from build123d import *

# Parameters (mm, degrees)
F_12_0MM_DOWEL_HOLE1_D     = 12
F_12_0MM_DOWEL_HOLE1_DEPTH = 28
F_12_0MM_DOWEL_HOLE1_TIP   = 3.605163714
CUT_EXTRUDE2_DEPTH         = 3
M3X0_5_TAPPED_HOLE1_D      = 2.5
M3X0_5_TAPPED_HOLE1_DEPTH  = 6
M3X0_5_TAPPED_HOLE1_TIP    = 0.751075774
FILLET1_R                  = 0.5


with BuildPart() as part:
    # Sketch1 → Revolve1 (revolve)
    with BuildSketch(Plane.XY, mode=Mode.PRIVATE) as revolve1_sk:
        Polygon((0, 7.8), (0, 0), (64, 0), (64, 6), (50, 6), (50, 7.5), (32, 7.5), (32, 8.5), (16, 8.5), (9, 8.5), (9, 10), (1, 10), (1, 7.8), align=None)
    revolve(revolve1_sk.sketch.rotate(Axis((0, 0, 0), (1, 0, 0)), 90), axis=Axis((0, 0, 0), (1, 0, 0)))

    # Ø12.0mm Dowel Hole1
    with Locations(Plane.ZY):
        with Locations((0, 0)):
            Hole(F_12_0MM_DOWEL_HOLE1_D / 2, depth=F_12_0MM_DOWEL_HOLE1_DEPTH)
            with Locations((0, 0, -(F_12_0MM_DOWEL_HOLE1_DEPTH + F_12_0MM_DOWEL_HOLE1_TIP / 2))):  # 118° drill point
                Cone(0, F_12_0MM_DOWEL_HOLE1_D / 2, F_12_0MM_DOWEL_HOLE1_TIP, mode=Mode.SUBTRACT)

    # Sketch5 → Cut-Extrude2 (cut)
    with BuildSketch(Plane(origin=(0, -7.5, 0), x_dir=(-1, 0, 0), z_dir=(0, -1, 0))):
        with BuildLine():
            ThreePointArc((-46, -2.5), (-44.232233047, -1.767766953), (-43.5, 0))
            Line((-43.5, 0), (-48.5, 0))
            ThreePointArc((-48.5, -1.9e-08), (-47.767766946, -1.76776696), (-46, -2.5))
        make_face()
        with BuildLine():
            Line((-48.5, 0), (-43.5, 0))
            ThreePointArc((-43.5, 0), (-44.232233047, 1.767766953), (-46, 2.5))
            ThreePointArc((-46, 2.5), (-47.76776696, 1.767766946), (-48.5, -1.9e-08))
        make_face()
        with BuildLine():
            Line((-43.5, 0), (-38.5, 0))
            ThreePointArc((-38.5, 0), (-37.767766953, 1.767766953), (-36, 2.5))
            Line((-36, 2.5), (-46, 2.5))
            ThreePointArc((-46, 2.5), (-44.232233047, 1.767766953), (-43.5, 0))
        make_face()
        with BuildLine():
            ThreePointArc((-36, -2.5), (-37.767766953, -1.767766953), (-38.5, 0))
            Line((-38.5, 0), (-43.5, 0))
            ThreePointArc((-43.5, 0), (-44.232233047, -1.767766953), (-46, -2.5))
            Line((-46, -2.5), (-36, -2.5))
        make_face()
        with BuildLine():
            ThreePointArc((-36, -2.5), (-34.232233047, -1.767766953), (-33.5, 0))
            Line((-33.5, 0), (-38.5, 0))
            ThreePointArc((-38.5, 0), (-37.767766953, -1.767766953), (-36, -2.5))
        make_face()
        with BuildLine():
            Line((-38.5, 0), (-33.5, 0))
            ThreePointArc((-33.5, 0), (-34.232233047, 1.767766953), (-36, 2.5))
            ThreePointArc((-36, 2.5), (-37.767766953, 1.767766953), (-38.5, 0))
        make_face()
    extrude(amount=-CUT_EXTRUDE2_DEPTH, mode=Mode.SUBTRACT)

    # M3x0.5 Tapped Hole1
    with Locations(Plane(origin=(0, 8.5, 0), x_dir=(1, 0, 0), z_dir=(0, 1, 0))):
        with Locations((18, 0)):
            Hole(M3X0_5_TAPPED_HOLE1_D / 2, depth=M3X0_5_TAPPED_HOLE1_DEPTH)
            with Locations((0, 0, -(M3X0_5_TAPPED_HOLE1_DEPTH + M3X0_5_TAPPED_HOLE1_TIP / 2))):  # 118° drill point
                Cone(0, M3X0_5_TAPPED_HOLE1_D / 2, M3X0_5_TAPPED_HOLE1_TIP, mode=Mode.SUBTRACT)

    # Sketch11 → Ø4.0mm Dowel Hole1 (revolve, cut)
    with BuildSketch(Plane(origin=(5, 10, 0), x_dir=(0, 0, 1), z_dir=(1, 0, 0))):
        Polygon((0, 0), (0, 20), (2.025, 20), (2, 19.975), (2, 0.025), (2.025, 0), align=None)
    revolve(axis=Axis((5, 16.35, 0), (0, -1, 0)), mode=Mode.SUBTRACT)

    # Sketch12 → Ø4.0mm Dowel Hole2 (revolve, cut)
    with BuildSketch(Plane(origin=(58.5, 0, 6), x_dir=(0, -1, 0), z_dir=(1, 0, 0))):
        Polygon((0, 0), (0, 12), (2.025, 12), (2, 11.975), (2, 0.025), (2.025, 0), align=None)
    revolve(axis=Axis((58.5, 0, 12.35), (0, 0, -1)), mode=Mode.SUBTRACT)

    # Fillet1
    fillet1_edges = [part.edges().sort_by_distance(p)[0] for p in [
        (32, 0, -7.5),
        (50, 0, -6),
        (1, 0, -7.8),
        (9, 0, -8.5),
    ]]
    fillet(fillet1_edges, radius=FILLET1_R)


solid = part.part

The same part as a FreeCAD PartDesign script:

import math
import FreeCAD as App
import Part
import Sketcher

V = App.Vector


def edges_at(feature, points):
    """Names of the edges that pass closest to the given points."""
    edges = feature.Shape.Edges
    near = lambda p: min(range(len(edges)), key=lambda i: edges[i].distToShape(Part.Vertex(*p))[0])
    return sorted({f"Edge{near(p) + 1}" for p in points})

doc = App.newDocument("Part")
body = doc.addObject("PartDesign::Body", "Body")

sketch1 = body.newObject("Sketcher::SketchObject", "Sketch")
sketch1.AttachmentSupport = (doc.getObject("XY_Plane"), [""])
sketch1.MapMode = "FlatFace"
sketch1.addGeometry(Part.LineSegment(V(0, 7.8, 0), V(0, 0, 0)), False)
sketch1.addGeometry(Part.LineSegment(V(0, 0, 0), V(64, 0, 0)), False)
sketch1.addGeometry(Part.LineSegment(V(64, 0, 0), V(64, 6, 0)), False)
sketch1.addGeometry(Part.LineSegment(V(64, 6, 0), V(50, 6, 0)), False)
sketch1.addGeometry(Part.LineSegment(V(50, 6, 0), V(50, 7.5, 0)), False)
sketch1.addGeometry(Part.LineSegment(V(50, 7.5, 0), V(32, 7.5, 0)), False)
sketch1.addGeometry(Part.LineSegment(V(32, 7.5, 0), V(32, 8.5, 0)), False)
sketch1.addGeometry(Part.LineSegment(V(32, 8.5, 0), V(9, 8.5, 0)), False)
sketch1.addGeometry(Part.LineSegment(V(9, 8.5, 0), V(9, 10, 0)), False)
sketch1.addGeometry(Part.LineSegment(V(9, 10, 0), V(1, 10, 0)), False)
sketch1.addGeometry(Part.LineSegment(V(1, 10, 0), V(1, 7.8, 0)), False)
sketch1.addGeometry(Part.LineSegment(V(1, 7.8, 0), V(0, 7.8, 0)), False)
sketch1.addConstraint(Sketcher.Constraint("Coincident", 0, 2, 1, 1))
sketch1.addConstraint(Sketcher.Constraint("Coincident", 1, 2, 2, 1))
sketch1.addConstraint(Sketcher.Constraint("Coincident", 2, 2, 3, 1))
sketch1.addConstraint(Sketcher.Constraint("Coincident", 3, 2, 4, 1))
sketch1.addConstraint(Sketcher.Constraint("Coincident", 4, 2, 5, 1))
sketch1.addConstraint(Sketcher.Constraint("Coincident", 5, 2, 6, 1))
sketch1.addConstraint(Sketcher.Constraint("Coincident", 6, 2, 7, 1))
sketch1.addConstraint(Sketcher.Constraint("Coincident", 7, 2, 8, 1))
sketch1.addConstraint(Sketcher.Constraint("Coincident", 8, 2, 9, 1))
sketch1.addConstraint(Sketcher.Constraint("Coincident", 9, 2, 10, 1))
sketch1.addConstraint(Sketcher.Constraint("Coincident", 10, 2, 11, 1))
sketch1.addConstraint(Sketcher.Constraint("Coincident", 11, 2, 0, 1))
sketch1.addConstraint(Sketcher.Constraint("Vertical", 0))
sketch1.addConstraint(Sketcher.Constraint("Horizontal", 1))
sketch1.addConstraint(Sketcher.Constraint("Vertical", 2))
sketch1.addConstraint(Sketcher.Constraint("Horizontal", 3))
sketch1.addConstraint(Sketcher.Constraint("Vertical", 4))
sketch1.addConstraint(Sketcher.Constraint("Horizontal", 5))
sketch1.addConstraint(Sketcher.Constraint("Vertical", 6))
sketch1.addConstraint(Sketcher.Constraint("Horizontal", 7))
sketch1.addConstraint(Sketcher.Constraint("Vertical", 8))
sketch1.addConstraint(Sketcher.Constraint("Horizontal", 9))
sketch1.addConstraint(Sketcher.Constraint("Vertical", 10))
sketch1.addConstraint(Sketcher.Constraint("Horizontal", 11))
sketch1.addConstraint(Sketcher.Constraint("Coincident", 0, 2, -1, 1))
sketch1.addConstraint(Sketcher.Constraint("Equal", 11, 6))
sketch1.addConstraint(Sketcher.Constraint("Equal", 4, 8))
sketch1.addConstraint(Sketcher.Constraint("DistanceX", 1, 1, 1, 2, 64.0))
sketch1.addConstraint(Sketcher.Constraint("DistanceX", 3, 2, 3, 1, 14.0))
sketch1.addConstraint(Sketcher.Constraint("DistanceX", 5, 2, 5, 1, 18.0))
sketch1.addConstraint(Sketcher.Constraint("DistanceX", 7, 2, 7, 1, 23.0))
sketch1.addConstraint(Sketcher.Constraint("DistanceX", 9, 2, 9, 1, 8.0))
sketch1.addConstraint(Sketcher.Constraint("DistanceY", 2, 1, 2, 2, 6.0))
sketch1.addConstraint(Sketcher.Constraint("DistanceY", 0, 2, 0, 1, 7.8))
sketch1.addConstraint(Sketcher.Constraint("DistanceY", 4, 1, 4, 2, 1.5))
revolution = body.newObject("PartDesign::Revolution", "Revolution")
revolution.Profile = sketch1
revolution.ReferenceAxis = (sketch1, ["H_Axis"])
revolution.Angle = 360

sketch2 = body.newObject("Sketcher::SketchObject", "Sketch001")
sketch2.AttachmentSupport = (doc.getObject("YZ_Plane"), [""])
sketch2.MapMode = "FlatFace"
sketch2.addGeometry(Part.Circle(V(0, 0, 0), V(0, 0, 1), 6), False)
sketch2.addConstraint(Sketcher.Constraint("Coincident", 0, 3, -1, 1))
sketch2.addConstraint(Sketcher.Constraint("Diameter", 0, 12.0))
doc.recompute()
hole = body.newObject("PartDesign::Hole", "Hole")
hole.Profile = sketch2
hole.ThreadType = "None"
hole.Diameter = 12
hole.DepthType = "Dimension"
hole.Depth = 28
hole.DrillPoint = "Angled"
hole.DrillPointAngle = 118
hole.Reversed = True

sketch3 = body.newObject("Sketcher::SketchObject", "Sketch002")
sketch3.AttachmentSupport = (doc.getObject("XZ_Plane"), [""])
sketch3.MapMode = "FlatFace"
sketch3.AttachmentOffset = App.Placement(V(0, 0, 7.5), App.Rotation())
sketch3.addGeometry(Part.ArcOfCircle(Part.Circle(V(36, 0, 0), V(0, 0, 1), 2.5), math.radians(180), math.radians(270)), False)
sketch3.addGeometry(Part.LineSegment(V(36, -2.5, 0), V(46, -2.5, 0)), False)
sketch3.addGeometry(Part.ArcOfCircle(Part.Circle(V(46, 0, 0), V(0, 0, 1), 2.5), math.radians(-90), math.radians(0)), False)
sketch3.addGeometry(Part.ArcOfCircle(Part.Circle(V(46, 0, 0), V(0, 0, 1), 2.5), math.radians(0), math.radians(90)), False)
sketch3.addGeometry(Part.LineSegment(V(46, 2.5, 0), V(36, 2.5, 0)), False)
sketch3.addGeometry(Part.ArcOfCircle(Part.Circle(V(36, 0, 0), V(0, 0, 1), 2.5), math.radians(90), math.radians(180)), False)
sketch3.addConstraint(Sketcher.Constraint("Tangent", 0, 2, 1, 1))
sketch3.addConstraint(Sketcher.Constraint("Tangent", 1, 2, 2, 1))
sketch3.addConstraint(Sketcher.Constraint("Tangent", 2, 2, 3, 1))
sketch3.addConstraint(Sketcher.Constraint("Tangent", 3, 2, 4, 1))
sketch3.addConstraint(Sketcher.Constraint("Tangent", 4, 2, 5, 1))
sketch3.addConstraint(Sketcher.Constraint("Tangent", 5, 2, 0, 1))
sketch3.addConstraint(Sketcher.Constraint("Horizontal", 1))
sketch3.addConstraint(Sketcher.Constraint("Horizontal", 4))
sketch3.addConstraint(Sketcher.Constraint("Equal", 0, 2))
sketch3.addConstraint(Sketcher.Constraint("Equal", 2, 3))
sketch3.addConstraint(Sketcher.Constraint("PointOnObject", 0, 3, -1))
sketch3.addConstraint(Sketcher.Constraint("PointOnObject", 2, 2, -1))
sketch3.addConstraint(Sketcher.Constraint("PointOnObject", 5, 2, -1))
sketch3.addConstraint(Sketcher.Constraint("Radius", 0, 2.5))
sketch3.addConstraint(Sketcher.Constraint("DistanceX", 1, 1, 1, 2, 10.0))
sketch3.addConstraint(Sketcher.Constraint("DistanceX", -1, 1, 0, 3, 36.0))
pocket1 = body.newObject("PartDesign::Pocket", "Pocket")
pocket1.Profile = sketch3
pocket1.Length = 3

sketch4 = body.newObject("Sketcher::SketchObject", "Sketch003")
sketch4.AttachmentSupport = (doc.getObject("XZ_Plane"), [""])
sketch4.MapMode = "FlatFace"
sketch4.AttachmentOffset = App.Placement(V(0, 0, -8.5), App.Rotation())
sketch4.addGeometry(Part.Circle(V(18, 0, 0), V(0, 0, 1), 1.2), False)
sketch4.addConstraint(Sketcher.Constraint("PointOnObject", 0, 3, -1))
sketch4.addConstraint(Sketcher.Constraint("Diameter", 0, 2.5))
sketch4.addConstraint(Sketcher.Constraint("DistanceX", -1, 1, 0, 3, 18.0))
doc.recompute()
hole2 = body.newObject("PartDesign::Hole", "Hole001")
hole2.Profile = sketch4
hole2.ThreadType = "None"
hole2.Diameter = 2.5
hole2.DepthType = "Dimension"
hole2.Depth = 6
hole2.DrillPoint = "Angled"
hole2.DrillPointAngle = 118
hole2.Reversed = True

sketch5 = body.newObject("Sketcher::SketchObject", "Sketch004")
sketch5.AttachmentSupport = (doc.getObject("YZ_Plane"), [""])
sketch5.MapMode = "FlatFace"
sketch5.AttachmentOffset = App.Placement(V(0, 0, 5), App.Rotation())
sketch5.addGeometry(Part.LineSegment(V(-10, 0, 0), V(10, 0, 0)), False)
sketch5.addGeometry(Part.LineSegment(V(10, 0, 0), V(10, 2.025, 0)), False)
sketch5.addGeometry(Part.LineSegment(V(10, 2.025, 0), V(9.975, 2, 0)), False)
sketch5.addGeometry(Part.LineSegment(V(9.975, 2, 0), V(-9.975, 2, 0)), False)
sketch5.addGeometry(Part.LineSegment(V(-9.975, 2, 0), V(-10, 2.025, 0)), False)
sketch5.addGeometry(Part.LineSegment(V(-10, 2.025, 0), V(-10, 0, 0)), False)
sketch5.addConstraint(Sketcher.Constraint("Coincident", 0, 2, 1, 1))
sketch5.addConstraint(Sketcher.Constraint("Coincident", 1, 2, 2, 1))
sketch5.addConstraint(Sketcher.Constraint("Coincident", 2, 2, 3, 1))
sketch5.addConstraint(Sketcher.Constraint("Coincident", 3, 2, 4, 1))
sketch5.addConstraint(Sketcher.Constraint("Coincident", 4, 2, 5, 1))
sketch5.addConstraint(Sketcher.Constraint("Coincident", 5, 2, 0, 1))
sketch5.addConstraint(Sketcher.Constraint("Horizontal", 0))
sketch5.addConstraint(Sketcher.Constraint("Vertical", 1))
sketch5.addConstraint(Sketcher.Constraint("Horizontal", 3))
sketch5.addConstraint(Sketcher.Constraint("Vertical", 5))
sketch5.addConstraint(Sketcher.Constraint("Symmetric", 0, 2, 5, 2, -1, 1))
sketch5.addConstraint(Sketcher.Constraint("Perpendicular", 2, 4))
sketch5.addConstraint(Sketcher.Constraint("Horizontal", 1, 2, 4, 2))
sketch5.addConstraint(Sketcher.Constraint("Equal", 2, 4))
sketch5.addConstraint(Sketcher.Constraint("DistanceX", 0, 1, 0, 2, 20.0))
sketch5.addConstraint(Sketcher.Constraint("DistanceY", -1, 1, 2, 2, 2.0))
sketch5.addConstraint(Sketcher.Constraint("DistanceX", 3, 2, 3, 1, 19.95))
groove = body.newObject("PartDesign::Groove", "Groove")
groove.Profile = sketch5
groove.ReferenceAxis = (sketch5, ["H_Axis"])
groove.Angle = 360

sketch6 = body.newObject("Sketcher::SketchObject", "Sketch005")
sketch6.AttachmentSupport = (doc.getObject("YZ_Plane"), [""])
sketch6.MapMode = "FlatFace"
sketch6.AttachmentOffset = App.Placement(V(0, 0, 58.5), App.Rotation())
sketch6.addGeometry(Part.LineSegment(V(0, -6, 0), V(0, 6, 0)), False)
sketch6.addGeometry(Part.LineSegment(V(0, 6, 0), V(-2.025, 6, 0)), False)
sketch6.addGeometry(Part.LineSegment(V(-2.025, 6, 0), V(-2, 5.975, 0)), False)
sketch6.addGeometry(Part.LineSegment(V(-2, 5.975, 0), V(-2, -5.975, 0)), False)
sketch6.addGeometry(Part.LineSegment(V(-2, -5.975, 0), V(-2.025, -6, 0)), False)
sketch6.addGeometry(Part.LineSegment(V(-2.025, -6, 0), V(0, -6, 0)), False)
sketch6.addConstraint(Sketcher.Constraint("Coincident", 0, 2, 1, 1))
sketch6.addConstraint(Sketcher.Constraint("Coincident", 1, 2, 2, 1))
sketch6.addConstraint(Sketcher.Constraint("Coincident", 2, 2, 3, 1))
sketch6.addConstraint(Sketcher.Constraint("Coincident", 3, 2, 4, 1))
sketch6.addConstraint(Sketcher.Constraint("Coincident", 4, 2, 5, 1))
sketch6.addConstraint(Sketcher.Constraint("Coincident", 5, 2, 0, 1))
sketch6.addConstraint(Sketcher.Constraint("Vertical", 0))
sketch6.addConstraint(Sketcher.Constraint("Horizontal", 1))
sketch6.addConstraint(Sketcher.Constraint("Vertical", 3))
sketch6.addConstraint(Sketcher.Constraint("Horizontal", 5))
sketch6.addConstraint(Sketcher.Constraint("Symmetric", 0, 2, 5, 2, -1, 1))
sketch6.addConstraint(Sketcher.Constraint("Perpendicular", 2, 4))
sketch6.addConstraint(Sketcher.Constraint("Vertical", 1, 2, 4, 2))
sketch6.addConstraint(Sketcher.Constraint("Equal", 2, 4))
sketch6.addConstraint(Sketcher.Constraint("DistanceY", 0, 1, 0, 2, 12.0))
sketch6.addConstraint(Sketcher.Constraint("DistanceX", 2, 2, -1, 1, 2.0))
sketch6.addConstraint(Sketcher.Constraint("DistanceY", 3, 2, 3, 1, 11.95))
groove2 = body.newObject("PartDesign::Groove", "Groove001")
groove2.Profile = sketch6
groove2.ReferenceAxis = (sketch6, ["V_Axis"])
groove2.Angle = 360
doc.recompute()

fillet = body.newObject("PartDesign::Fillet", "Fillet")
fillet.Base = (groove2, edges_at(groove2, [
    (32, 0, -7.5),
    (50, 0, -6),
    (1, 0, -7.8),
    (9, 0, -8.5),
]))
fillet.Radius = 0.5

doc.recompute()
